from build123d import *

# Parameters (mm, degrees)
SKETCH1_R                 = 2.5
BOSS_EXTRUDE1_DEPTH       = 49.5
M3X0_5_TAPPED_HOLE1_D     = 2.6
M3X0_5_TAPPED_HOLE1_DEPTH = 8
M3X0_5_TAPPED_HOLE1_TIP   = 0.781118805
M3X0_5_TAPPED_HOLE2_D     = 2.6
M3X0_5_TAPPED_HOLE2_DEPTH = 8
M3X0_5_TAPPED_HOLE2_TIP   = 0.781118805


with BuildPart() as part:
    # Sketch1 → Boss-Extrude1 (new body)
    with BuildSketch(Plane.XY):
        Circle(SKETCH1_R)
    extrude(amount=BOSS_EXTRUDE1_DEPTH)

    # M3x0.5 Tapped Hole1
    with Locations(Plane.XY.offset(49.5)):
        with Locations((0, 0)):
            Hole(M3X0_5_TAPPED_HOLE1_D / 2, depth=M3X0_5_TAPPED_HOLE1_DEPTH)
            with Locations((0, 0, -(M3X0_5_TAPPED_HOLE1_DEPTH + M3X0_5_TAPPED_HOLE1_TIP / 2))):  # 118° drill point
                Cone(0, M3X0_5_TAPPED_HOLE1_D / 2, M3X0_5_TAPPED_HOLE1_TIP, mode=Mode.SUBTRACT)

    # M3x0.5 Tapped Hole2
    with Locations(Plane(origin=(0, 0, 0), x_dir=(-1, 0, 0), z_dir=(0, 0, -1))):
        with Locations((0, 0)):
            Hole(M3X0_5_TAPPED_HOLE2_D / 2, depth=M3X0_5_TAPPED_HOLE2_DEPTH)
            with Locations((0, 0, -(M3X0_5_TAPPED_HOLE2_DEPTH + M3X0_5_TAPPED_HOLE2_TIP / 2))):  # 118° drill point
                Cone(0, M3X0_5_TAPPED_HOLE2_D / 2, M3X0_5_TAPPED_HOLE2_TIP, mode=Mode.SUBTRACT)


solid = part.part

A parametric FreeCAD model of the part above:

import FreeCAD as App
import Part
import Sketcher
from FreeCAD import Vector
Q = App.Units.Quantity

doc = App.newDocument("Part")
body = doc.addObject("PartDesign::Body", "Body")

# Sketch on XY plane
sketch1 = doc.addObject("Sketcher::SketchObject", "Sketch")
body.addObject(sketch1)
sketch1.AttachmentSupport = (doc.XY_Plane, [""])
sketch1.MapMode = "FlatFace"
sketch1.addGeometry(Part.Circle(Vector(0, 0, 0), Vector(0, 0, 1), 2.5), False)
sketch1.addConstraint([
    Sketcher.Constraint("Coincident", 0, 3, -1, 1),
    Sketcher.Constraint("Diameter", 0, Q("5 mm")),
])
pad1 = doc.addObject("PartDesign::Pad", "Pad")
body.addObject(pad1)
pad1.Profile = sketch1
pad1.Length = 49.5

# Sketch on XY plane
sketch2 = doc.addObject("Sketcher::SketchObject", "Sketch001")
body.addObject(sketch2)
sketch2.AttachmentSupport = (doc.XY_Plane, [""])
sketch2.MapMode = "FlatFace"
sketch2.AttachmentOffset = App.Placement(Vector(0, 0, 49.5), App.Rotation())
sketch2.addGeometry(Part.Circle(Vector(0, 0, 0), Vector(0, 0, 1), 1.3), False)
sketch2.addConstraint([
    Sketcher.Constraint("Coincident", 0, 3, -1, 1),
    Sketcher.Constraint("Diameter", 0, Q("2.6 mm")),
])
doc.recompute()
hole = doc.addObject("PartDesign::Hole", "Hole")
body.addObject(hole)
hole.Profile = sketch2
hole.ThreadType = "None"
hole.Diameter = 2.6
hole.DepthType = "Dimension"
hole.Depth = 8
hole.DrillPoint = "Angled"
hole.DrillPointAngle = 118

# Sketch on XY plane
sketch3 = doc.addObject("Sketcher::SketchObject", "Sketch002")
body.addObject(sketch3)
sketch3.AttachmentSupport = (doc.XY_Plane, [""])
sketch3.MapMode = "FlatFace"
sketch3.addGeometry(Part.Circle(Vector(0, 0, 0), Vector(0, 0, 1), 1.3), False)
sketch3.addConstraint([
    Sketcher.Constraint("Coincident", 0, 3, -1, 1),
    Sketcher.Constraint("Diameter", 0, Q("2.6 mm")),
])
doc.recompute()
hole2 = doc.addObject("PartDesign::Hole", "Hole001")
body.addObject(hole2)
hole2.Profile = sketch3
hole2.ThreadType = "None"
hole2.Diameter = 2.6
hole2.DepthType = "Dimension"
hole2.Depth = 8
hole2.DrillPoint = "Angled"
hole2.DrillPointAngle = 118
hole2.Reversed = True

doc.recompute()
